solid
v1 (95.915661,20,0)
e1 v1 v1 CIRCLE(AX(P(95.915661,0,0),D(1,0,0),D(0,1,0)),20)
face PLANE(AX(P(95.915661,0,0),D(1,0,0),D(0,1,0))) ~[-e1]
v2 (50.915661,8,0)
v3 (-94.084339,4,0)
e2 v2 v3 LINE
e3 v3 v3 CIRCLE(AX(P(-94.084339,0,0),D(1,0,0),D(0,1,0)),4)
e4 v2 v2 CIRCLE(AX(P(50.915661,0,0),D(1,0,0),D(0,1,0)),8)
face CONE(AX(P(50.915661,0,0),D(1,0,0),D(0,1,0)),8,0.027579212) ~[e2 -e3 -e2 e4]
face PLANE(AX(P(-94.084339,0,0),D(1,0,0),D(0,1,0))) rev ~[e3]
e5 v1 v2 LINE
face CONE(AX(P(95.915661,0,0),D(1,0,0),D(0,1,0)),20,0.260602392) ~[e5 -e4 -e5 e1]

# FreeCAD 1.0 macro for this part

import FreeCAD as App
import Part
import Sketcher
from FreeCAD import Vector

doc = App.newDocument("Part")
body = doc.addObject("PartDesign::Body", "Body")

sketch1 = doc.addObject("Sketcher::SketchObject", "Sketch")
body.addObject(sketch1)
sketch1.AttachmentSupport = (doc.XY_Plane, [""])
sketch1.MapMode = "FlatFace"
sketch1.addGeometry([
    Part.LineSegment(Vector(-94.1, 4, 0), Vector(-94.1, 0, 0)),
    Part.LineSegment(Vector(-94.1, 0, 0), Vector(95.9, 0, 0)),
    Part.LineSegment(Vector(95.9, 0, 0), Vector(95.9, 20, 0)),
    Part.LineSegment(Vector(95.9, 20, 0), Vector(50.9, 8, 0)),
    Part.LineSegment(Vector(50.9, 8, 0), Vector(-94.1, 4, 0)),
], False)
sketch1.addConstraint([
    Sketcher.Constraint("Coincident", 0, 2, 1, 1),
    Sketcher.Constraint("Coincident", 1, 2, 2, 1),
    Sketcher.Constraint("Coincident", 2, 2, 3, 1),
    Sketcher.Constraint("Coincident", 3, 2, 4, 1),
    Sketcher.Constraint("Coincident", 4, 2, 0, 1),
    Sketcher.Constraint("Vertical", 0),
    Sketcher.Constraint("Horizontal", 1),
    Sketcher.Constraint("Vertical", 2),
    Sketcher.Constraint("PointOnObject", 0, 2, -1),
    Sketcher.Constraint("DistanceX", 1, 1, 1, 2, 190.0),
    Sketcher.Constraint("DistanceY", 0, 2, 0, 1, 4.0),
    Sketcher.Constraint("DistanceY", 2, 1, 2, 2, 20.0),
    Sketcher.Constraint("DistanceY", -1, 1, 3, 2, 8.0),
    Sketcher.Constraint("DistanceX", 3, 2, 1, 2, 45.0),
    Sketcher.Constraint("DistanceX", 0, 2, -1, 1, 94.084339),
])
revolution = doc.addObject("PartDesign::Revolution", "Revolution")
body.addObject(revolution)
revolution.Profile = sketch1
revolution.ReferenceAxis = (sketch1, ["H_Axis"])
revolution.Angle = 360

doc.recompute()
